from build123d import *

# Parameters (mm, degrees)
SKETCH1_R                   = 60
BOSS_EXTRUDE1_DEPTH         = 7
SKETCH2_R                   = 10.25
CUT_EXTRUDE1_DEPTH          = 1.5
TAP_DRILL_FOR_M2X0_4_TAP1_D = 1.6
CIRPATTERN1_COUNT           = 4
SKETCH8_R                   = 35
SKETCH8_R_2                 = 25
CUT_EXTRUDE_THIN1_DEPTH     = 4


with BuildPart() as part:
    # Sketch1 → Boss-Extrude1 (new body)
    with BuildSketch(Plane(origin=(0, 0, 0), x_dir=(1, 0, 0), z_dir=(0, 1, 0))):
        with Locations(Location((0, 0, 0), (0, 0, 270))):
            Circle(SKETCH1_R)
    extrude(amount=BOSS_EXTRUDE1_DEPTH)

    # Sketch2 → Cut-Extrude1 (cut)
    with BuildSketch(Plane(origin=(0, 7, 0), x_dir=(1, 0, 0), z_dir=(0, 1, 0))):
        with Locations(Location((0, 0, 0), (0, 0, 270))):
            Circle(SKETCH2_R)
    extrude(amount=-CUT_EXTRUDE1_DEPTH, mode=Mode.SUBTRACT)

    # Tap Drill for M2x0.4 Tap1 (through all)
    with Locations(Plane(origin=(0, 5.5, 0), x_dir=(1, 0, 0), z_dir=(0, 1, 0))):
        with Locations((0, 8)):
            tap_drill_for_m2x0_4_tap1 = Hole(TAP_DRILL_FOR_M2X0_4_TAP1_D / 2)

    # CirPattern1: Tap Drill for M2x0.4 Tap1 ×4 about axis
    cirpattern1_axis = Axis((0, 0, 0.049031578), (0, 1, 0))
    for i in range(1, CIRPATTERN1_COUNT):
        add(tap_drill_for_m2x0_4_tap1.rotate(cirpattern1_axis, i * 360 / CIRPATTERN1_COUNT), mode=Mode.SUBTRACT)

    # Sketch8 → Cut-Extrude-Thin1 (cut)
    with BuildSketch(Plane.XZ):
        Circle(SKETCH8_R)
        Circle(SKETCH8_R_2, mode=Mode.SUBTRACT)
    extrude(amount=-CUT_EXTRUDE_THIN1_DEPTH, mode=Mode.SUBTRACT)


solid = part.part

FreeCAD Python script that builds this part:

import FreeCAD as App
import Part
import Sketcher

V = App.Vector
Q = App.Units.Quantity

doc = App.newDocument("Part")
body = doc.addObject("PartDesign::Body", "Body")

# Sketch on XZ plane
sketch1 = body.newObject("Sketcher::SketchObject", "Sketch")
sketch1.AttachmentSupport = (doc.getObject("XZ_Plane"), [""])
sketch1.MapMode = "FlatFace"
sketch1.addGeometry(Part.Circle(V(0, 0, 0), V(0, 0, 1), 60), False)
sketch1.addConstraint(Sketcher.Constraint("Coincident", 0, 3, -1, 1))
sketch1.addConstraint(Sketcher.Constraint("Diameter", 0, Q("120 mm")))
pad1 = body.newObject("PartDesign::Pad", "Pad")
pad1.Profile = sketch1
pad1.Length = 7
pad1.Reversed = True

# Sketch on XZ plane
sketch2 = body.newObject("Sketcher::SketchObject", "Sketch001")
sketch2.AttachmentSupport = (doc.getObject("XZ_Plane"), [""])
sketch2.MapMode = "FlatFace"
sketch2.AttachmentOffset = App.Placement(V(0, 0, -7), App.Rotation())
sketch2.addGeometry(Part.Circle(V(0, 0, 0), V(0, 0, 1), 10.25), False)
sketch2.addConstraint(Sketcher.Constraint("Coincident", 0, 3, -1, 1))
sketch2.addConstraint(Sketcher.Constraint("Diameter", 0, Q("20.5 mm")))
pocket1 = body.newObject("PartDesign::Pocket", "Pocket")
pocket1.Profile = sketch2
pocket1.Length = 1.5
pocket1.Reversed = True

# Sketch on XZ plane
sketch3 = body.newObject("Sketcher::SketchObject", "Sketch002")
sketch3.AttachmentSupport = (doc.getObject("XZ_Plane"), [""])
sketch3.MapMode = "FlatFace"
sketch3.AttachmentOffset = App.Placement(V(0, 0, -5.5), App.Rotation())
sketch3.addGeometry(Part.Circle(V(0, -8, 0), V(0, 0, 1), 0.8), False)
sketch3.addConstraint(Sketcher.Constraint("PointOnObject", 0, 3, -2))
sketch3.addConstraint(Sketcher.Constraint("Diameter", 0, Q("1.6 mm")))
sketch3.addConstraint(Sketcher.Constraint("DistanceY", 0, 3, -1, 1, Q("8 mm")))
doc.recompute()
hole = body.newObject("PartDesign::Hole", "Hole")
hole.Profile = sketch3
hole.ThreadType = "None"
hole.Diameter = 1.6
hole.DepthType = "ThroughAll"
hole.Reversed = True
doc.recompute()

datumline = body.newObject("PartDesign::Line", "DatumLine")
datumline.Placement = App.Placement(V(0, 0, 0.049032), App.Rotation(V(0, 0, 1), V(0, 1, 0)))
polarpattern = body.newObject("PartDesign::PolarPattern", "PolarPattern")
polarpattern.Originals = [hole]
polarpattern.Axis = (datumline, [""])
polarpattern.Angle = 360
polarpattern.Occurrences = 4
body.Tip = polarpattern

# Sketch on XZ plane
sketch4 = body.newObject("Sketcher::SketchObject", "Sketch003")
sketch4.AttachmentSupport = (doc.getObject("XZ_Plane"), [""])
sketch4.MapMode = "FlatFace"
sketch4.addGeometry(Part.Circle(V(0, 0, 0), V(0, 0, 1), 35), False)
sketch4.addGeometry(Part.Circle(V(0, 0, 0), V(0, 0, 1), 25), False)
sketch4.addConstraint(Sketcher.Constraint("Coincident", 0, 3, -1, 1))
sketch4.addConstraint(Sketcher.Constraint("Coincident", 1, 3, -1, 1))
sketch4.addConstraint(Sketcher.Constraint("Diameter", 0, Q("70 mm")))
sketch4.addConstraint(Sketcher.Constraint("Diameter", 1, Q("50 mm")))
pocket2 = body.newObject("PartDesign::Pocket", "Pocket001")
pocket2.Profile = sketch4
pocket2.Length = 4

doc.recompute()
